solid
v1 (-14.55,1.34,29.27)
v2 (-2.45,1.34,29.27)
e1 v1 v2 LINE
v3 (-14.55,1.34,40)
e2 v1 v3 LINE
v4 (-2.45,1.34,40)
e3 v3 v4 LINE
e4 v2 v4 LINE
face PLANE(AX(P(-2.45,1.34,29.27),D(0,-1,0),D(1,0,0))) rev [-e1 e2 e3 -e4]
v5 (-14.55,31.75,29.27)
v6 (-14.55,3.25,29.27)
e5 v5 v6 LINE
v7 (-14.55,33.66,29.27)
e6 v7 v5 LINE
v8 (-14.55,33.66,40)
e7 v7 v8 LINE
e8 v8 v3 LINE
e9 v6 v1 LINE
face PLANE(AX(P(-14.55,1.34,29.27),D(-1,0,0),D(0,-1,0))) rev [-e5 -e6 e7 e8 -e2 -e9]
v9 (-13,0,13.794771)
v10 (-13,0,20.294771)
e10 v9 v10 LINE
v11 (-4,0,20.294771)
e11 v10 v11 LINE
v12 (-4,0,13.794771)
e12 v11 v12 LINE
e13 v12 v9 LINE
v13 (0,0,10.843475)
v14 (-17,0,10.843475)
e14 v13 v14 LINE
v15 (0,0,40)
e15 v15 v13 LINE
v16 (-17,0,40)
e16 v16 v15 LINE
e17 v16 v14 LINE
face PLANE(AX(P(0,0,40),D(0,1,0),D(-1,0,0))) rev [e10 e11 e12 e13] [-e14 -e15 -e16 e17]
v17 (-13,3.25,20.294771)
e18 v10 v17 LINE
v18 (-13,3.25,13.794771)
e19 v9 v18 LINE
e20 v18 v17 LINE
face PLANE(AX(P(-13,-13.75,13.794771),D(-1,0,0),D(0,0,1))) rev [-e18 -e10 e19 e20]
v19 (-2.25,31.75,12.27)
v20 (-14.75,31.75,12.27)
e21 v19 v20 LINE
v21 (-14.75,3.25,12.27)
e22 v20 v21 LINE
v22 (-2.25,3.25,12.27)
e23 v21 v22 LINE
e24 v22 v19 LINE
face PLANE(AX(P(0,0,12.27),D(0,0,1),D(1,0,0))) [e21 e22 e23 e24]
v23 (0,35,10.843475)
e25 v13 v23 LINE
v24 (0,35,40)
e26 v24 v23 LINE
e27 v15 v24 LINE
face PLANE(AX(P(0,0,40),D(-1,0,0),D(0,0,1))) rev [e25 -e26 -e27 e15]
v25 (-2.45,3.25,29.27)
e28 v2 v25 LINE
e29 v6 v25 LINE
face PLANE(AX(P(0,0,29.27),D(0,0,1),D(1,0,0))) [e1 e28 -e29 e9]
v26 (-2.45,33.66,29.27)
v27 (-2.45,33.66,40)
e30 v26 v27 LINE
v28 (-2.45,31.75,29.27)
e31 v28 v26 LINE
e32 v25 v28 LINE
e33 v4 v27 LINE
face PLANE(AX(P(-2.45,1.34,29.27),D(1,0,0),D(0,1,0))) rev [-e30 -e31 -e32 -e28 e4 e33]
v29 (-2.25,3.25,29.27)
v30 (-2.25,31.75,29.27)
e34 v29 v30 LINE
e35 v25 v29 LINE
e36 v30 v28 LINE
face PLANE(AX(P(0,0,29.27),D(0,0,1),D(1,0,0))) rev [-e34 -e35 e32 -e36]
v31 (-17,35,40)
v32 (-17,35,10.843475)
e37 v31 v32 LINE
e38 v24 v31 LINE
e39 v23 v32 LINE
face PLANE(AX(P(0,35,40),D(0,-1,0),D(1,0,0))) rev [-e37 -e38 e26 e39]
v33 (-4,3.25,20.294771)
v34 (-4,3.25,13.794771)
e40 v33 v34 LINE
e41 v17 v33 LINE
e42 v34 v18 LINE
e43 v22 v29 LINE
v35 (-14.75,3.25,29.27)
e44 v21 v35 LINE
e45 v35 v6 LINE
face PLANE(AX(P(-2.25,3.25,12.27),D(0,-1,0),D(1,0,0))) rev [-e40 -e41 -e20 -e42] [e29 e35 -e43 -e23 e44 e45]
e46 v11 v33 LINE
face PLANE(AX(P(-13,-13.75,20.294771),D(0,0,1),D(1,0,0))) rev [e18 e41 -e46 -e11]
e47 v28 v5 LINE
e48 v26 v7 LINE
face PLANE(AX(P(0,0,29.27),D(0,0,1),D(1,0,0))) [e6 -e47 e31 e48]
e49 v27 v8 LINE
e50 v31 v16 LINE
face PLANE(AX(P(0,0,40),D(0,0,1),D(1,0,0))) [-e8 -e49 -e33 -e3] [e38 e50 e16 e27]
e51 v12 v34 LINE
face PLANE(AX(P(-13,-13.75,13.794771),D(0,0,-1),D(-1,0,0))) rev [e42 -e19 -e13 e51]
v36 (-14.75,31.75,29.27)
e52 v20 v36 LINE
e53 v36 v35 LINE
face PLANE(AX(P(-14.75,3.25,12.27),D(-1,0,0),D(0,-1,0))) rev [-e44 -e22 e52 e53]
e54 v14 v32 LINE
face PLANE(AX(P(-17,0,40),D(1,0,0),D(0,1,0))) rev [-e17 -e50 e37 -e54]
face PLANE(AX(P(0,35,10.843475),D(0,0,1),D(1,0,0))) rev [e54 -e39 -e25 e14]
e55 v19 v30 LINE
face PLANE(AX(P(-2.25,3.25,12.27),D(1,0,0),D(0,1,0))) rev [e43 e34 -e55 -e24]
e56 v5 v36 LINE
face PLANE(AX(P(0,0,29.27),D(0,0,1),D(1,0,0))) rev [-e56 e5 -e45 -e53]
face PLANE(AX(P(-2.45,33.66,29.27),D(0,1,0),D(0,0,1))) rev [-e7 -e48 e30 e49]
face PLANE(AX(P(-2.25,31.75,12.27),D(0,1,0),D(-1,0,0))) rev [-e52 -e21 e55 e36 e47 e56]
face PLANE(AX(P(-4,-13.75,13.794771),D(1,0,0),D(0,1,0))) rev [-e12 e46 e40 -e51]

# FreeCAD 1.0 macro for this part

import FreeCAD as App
import Part
import Sketcher

V = App.Vector
Q = App.Units.Quantity

doc = App.newDocument("Part")
params = doc.addObject("Spreadsheet::Sheet", "Params")
for row, (alias, value) in enumerate([
    ("sketch1_width", "17 mm"),
    ("sketch1_height", "35 mm"),
    ("pad1_length", "40 mm"),
    ("sketch2_width", "12.1 mm"),
    ("sketch2_height", "32.32 mm"),
    ("pocket1_length", "10.73 mm"),
    ("sketch3_width", "12.5 mm"),
    ("sketch3_height", "28.5 mm"),
    ("pocket2_length", "17 mm"),
    ("sketch4_width", "9 mm"),
    ("sketch4_height", "6.5 mm"),
    ("pocket3_length", "17 mm"),
    ("sketch5_width", "35 mm"),
], start=1):
    params.set(f"A{row}", alias)
    params.set(f"B{row}", "=" + value)
    params.setAlias(f"B{row}", alias)

body = doc.addObject("PartDesign::Body", "Body")

# Sketch on XY plane
sketch1 = body.newObject("Sketcher::SketchObject", "Sketch")
sketch1.AttachmentSupport = (doc.getObject("XY_Plane"), [""])
sketch1.MapMode = "FlatFace"
sketch1.addGeometry(Part.LineSegment(V(-17, 35, 0), V(-17, 0, 0)), False)
sketch1.addGeometry(Part.LineSegment(V(-17, 0, 0), V(0, 0, 0)), False)
sketch1.addGeometry(Part.LineSegment(V(0, 0, 0), V(0, 35, 0)), False)
sketch1.addGeometry(Part.LineSegment(V(0, 35, 0), V(-17, 35, 0)), False)
sketch1.addConstraint(Sketcher.Constraint("Coincident", 0, 2, 1, 1))
sketch1.addConstraint(Sketcher.Constraint("Coincident", 1, 2, 2, 1))
sketch1.addConstraint(Sketcher.Constraint("Coincident", 2, 2, 3, 1))
sketch1.addConstraint(Sketcher.Constraint("Coincident", 3, 2, 0, 1))
sketch1.addConstraint(Sketcher.Constraint("Vertical", 0))
sketch1.addConstraint(Sketcher.Constraint("Horizontal", 1))
sketch1.addConstraint(Sketcher.Constraint("Vertical", 2))
sketch1.addConstraint(Sketcher.Constraint("Horizontal", 3))
sketch1.addConstraint(Sketcher.Constraint("Coincident", 1, 2, -1, 1))
sketch1.addConstraint(Sketcher.Constraint("DistanceX", 1, 1, 1, 2, Q("17 mm")))
sketch1.addConstraint(Sketcher.Constraint("DistanceY", 0, 2, 0, 1, Q("35 mm")))
sketch1.setExpression("Constraints[9]", "Params.sketch1_width")
sketch1.setExpression("Constraints[10]", "Params.sketch1_height")
pad1 = body.newObject("PartDesign::Pad", "Pad")
pad1.Profile = sketch1
pad1.setExpression("Length", "Params.pad1_length")

# Sketch on XY plane
sketch2 = body.newObject("Sketcher::SketchObject", "Sketch001")
sketch2.AttachmentSupport = (doc.getObject("XY_Plane"), [""])
sketch2.MapMode = "FlatFace"
sketch2.AttachmentOffset = App.Placement(V(0, 0, 40), App.Rotation())
sketch2.addGeometry(Part.LineSegment(V(-15, 34, 0), V(-15, 1, 0)), False)
sketch2.addGeometry(Part.LineSegment(V(-15, 1, 0), V(-2, 1, 0)), False)
sketch2.addGeometry(Part.LineSegment(V(-2, 1, 0), V(-2, 34, 0)), False)
sketch2.addGeometry(Part.LineSegment(V(-2, 34, 0), V(-15, 34, 0)), False)
sketch2.addConstraint(Sketcher.Constraint("Coincident", 0, 2, 1, 1))
sketch2.addConstraint(Sketcher.Constraint("Coincident", 1, 2, 2, 1))
sketch2.addConstraint(Sketcher.Constraint("Coincident", 2, 2, 3, 1))
sketch2.addConstraint(Sketcher.Constraint("Coincident", 3, 2, 0, 1))
sketch2.addConstraint(Sketcher.Constraint("Vertical", 0))
sketch2.addConstraint(Sketcher.Constraint("Horizontal", 1))
sketch2.addConstraint(Sketcher.Constraint("Vertical", 2))
sketch2.addConstraint(Sketcher.Constraint("Horizontal", 3))
sketch2.addConstraint(Sketcher.Constraint("DistanceX", 1, 1, 1, 2, Q("12.1 mm")))
sketch2.addConstraint(Sketcher.Constraint("DistanceY", 0, 2, 0, 1, Q("32.32 mm")))
sketch2.addConstraint(Sketcher.Constraint("DistanceX", 0, 2, -1, 1, Q("14.55 mm")))
sketch2.addConstraint(Sketcher.Constraint("DistanceY", -1, 1, 0, 2, Q("1.34 mm")))
sketch2.setExpression("Constraints[8]", "Params.sketch2_width")
sketch2.setExpression("Constraints[9]", "Params.sketch2_height")
pocket1 = body.newObject("PartDesign::Pocket", "Pocket")
pocket1.Profile = sketch2
pocket1.setExpression("Length", "Params.pocket1_length")

# Sketch on XY plane
sketch3 = body.newObject("Sketcher::SketchObject", "Sketch002")
sketch3.AttachmentSupport = (doc.getObject("XY_Plane"), [""])
sketch3.MapMode = "FlatFace"
sketch3.AttachmentOffset = App.Placement(V(0, 0, 29.27), App.Rotation())
sketch3.addGeometry(Part.LineSegment(V(-15, 32, 0), V(-15, 3, 0)), False)
sketch3.addGeometry(Part.LineSegment(V(-15, 3, 0), V(-2, 3, 0)), False)
sketch3.addGeometry(Part.LineSegment(V(-2, 3, 0), V(-2, 32, 0)), False)
sketch3.addGeometry(Part.LineSegment(V(-2, 32, 0), V(-15, 32, 0)), False)
sketch3.addConstraint(Sketcher.Constraint("Coincident", 0, 2, 1, 1))
sketch3.addConstraint(Sketcher.Constraint("Coincident", 1, 2, 2, 1))
sketch3.addConstraint(Sketcher.Constraint("Coincident", 2, 2, 3, 1))
sketch3.addConstraint(Sketcher.Constraint("Coincident", 3, 2, 0, 1))
sketch3.addConstraint(Sketcher.Constraint("Vertical", 0))
sketch3.addConstraint(Sketcher.Constraint("Horizontal", 1))
sketch3.addConstraint(Sketcher.Constraint("Vertical", 2))
sketch3.addConstraint(Sketcher.Constraint("Horizontal", 3))
sketch3.addConstraint(Sketcher.Constraint("DistanceX", 1, 1, 1, 2, Q("12.5 mm")))
sketch3.addConstraint(Sketcher.Constraint("DistanceY", 0, 2, 0, 1, Q("28.5 mm")))
sketch3.addConstraint(Sketcher.Constraint("DistanceX", 0, 2, -1, 1, Q("14.75 mm")))
sketch3.addConstraint(Sketcher.Constraint("DistanceY", -1, 1, 0, 2, Q("3.25 mm")))
sketch3.setExpression("Constraints[8]", "Params.sketch3_width")
sketch3.setExpression("Constraints[9]", "Params.sketch3_height")
pocket2 = body.newObject("PartDesign::Pocket", "Pocket001")
pocket2.Profile = sketch3
pocket2.setExpression("Length", "Params.pocket2_length")

# Sketch on XZ plane
sketch4 = body.newObject("Sketcher::SketchObject", "Sketch003")
sketch4.AttachmentSupport = (doc.getObject("XZ_Plane"), [""])
sketch4.MapMode = "FlatFace"
sketch4.AttachmentOffset = App.Placement(V(0, 0, -3.25), App.Rotation())
sketch4.addGeometry(Part.LineSegment(V(-13, 14, 0), V(-13, 20, 0)), False)
sketch4.addGeometry(Part.LineSegment(V(-13, 20, 0), V(-4, 20, 0)), False)
sketch4.addGeometry(Part.LineSegment(V(-4, 20, 0), V(-4, 14, 0)), False)
sketch4.addGeometry(Part.LineSegment(V(-4, 14, 0), V(-13, 14, 0)), False)
sketch4.addConstraint(Sketcher.Constraint("Coincident", 0, 2, 1, 1))
sketch4.addConstraint(Sketcher.Constraint("Coincident", 1, 2, 2, 1))
sketch4.addConstraint(Sketcher.Constraint("Coincident", 2, 2, 3, 1))
sketch4.addConstraint(Sketcher.Constraint("Coincident", 3, 2, 0, 1))
sketch4.addConstraint(Sketcher.Constraint("Vertical", 0))
sketch4.addConstraint(Sketcher.Constraint("Horizontal", 1))
sketch4.addConstraint(Sketcher.Constraint("Vertical", 2))
sketch4.addConstraint(Sketcher.Constraint("Horizontal", 3))
sketch4.addConstraint(Sketcher.Constraint("DistanceX", 1, 1, 1, 2, Q("9 mm")))
sketch4.addConstraint(Sketcher.Constraint("DistanceY", 0, 1, 0, 2, Q("6.5 mm")))
sketch4.addConstraint(Sketcher.Constraint("DistanceX", 0, 2, -1, 1, Q("13 mm")))
sketch4.addConstraint(Sketcher.Constraint("DistanceY", -1, 1, 0, 2, Q("20.294771 mm")))
sketch4.setExpression("Constraints[8]", "Params.sketch4_width")
sketch4.setExpression("Constraints[9]", "Params.sketch4_height")
pocket3 = body.newObject("PartDesign::Pocket", "Pocket002")
pocket3.Profile = sketch4
pocket3.setExpression("Length", "Params.pocket3_length")
pocket3.Reversed = True

# Sketch on YZ plane
sketch5 = body.newObject("Sketcher::SketchObject", "Sketch004")
sketch5.AttachmentSupport = (doc.getObject("YZ_Plane"), [""])
sketch5.MapMode = "FlatFace"
sketch5.AttachmentOffset = App.Placement(V(0, 0, -17), App.Rotation())
sketch5.addGeometry(Part.LineSegment(V(35, 0, 0), V(0, 0, 0)), False)
sketch5.addGeometry(Part.LineSegment(V(0, 0, 0), V(0, 11, 0)), False)
sketch5.addGeometry(Part.LineSegment(V(0, 11, 0), V(35, 11, 0)), False)
sketch5.addGeometry(Part.LineSegment(V(35, 11, 0), V(35, 0, 0)), False)
sketch5.addConstraint(Sketcher.Constraint("Coincident", 0, 2, 1, 1))
sketch5.addConstraint(Sketcher.Constraint("Coincident", 1, 2, 2, 1))
sketch5.addConstraint(Sketcher.Constraint("Coincident", 2, 2, 3, 1))
sketch5.addConstraint(Sketcher.Constraint("Coincident", 3, 2, 0, 1))
sketch5.addConstraint(Sketcher.Constraint("Horizontal", 0))
sketch5.addConstraint(Sketcher.Constraint("Vertical", 1))
sketch5.addConstraint(Sketcher.Constraint("Horizontal", 2))
sketch5.addConstraint(Sketcher.Constraint("Vertical", 3))
sketch5.addConstraint(Sketcher.Constraint("Coincident", 0, 2, -1, 1))
sketch5.addConstraint(Sketcher.Constraint("DistanceX", 0, 2, 0, 1, Q("35 mm")))
sketch5.addConstraint(Sketcher.Constraint("DistanceY", 1, 1, 1, 2, Q("10.843475 mm")))
sketch5.setExpression("Constraints[9]", "Params.sketch5_width")
pocket4 = body.newObject("PartDesign::Pocket", "Pocket003")
pocket4.Profile = sketch5
pocket4.Type = "ThroughAll"
pocket4.Reversed = True

doc.recompute()
